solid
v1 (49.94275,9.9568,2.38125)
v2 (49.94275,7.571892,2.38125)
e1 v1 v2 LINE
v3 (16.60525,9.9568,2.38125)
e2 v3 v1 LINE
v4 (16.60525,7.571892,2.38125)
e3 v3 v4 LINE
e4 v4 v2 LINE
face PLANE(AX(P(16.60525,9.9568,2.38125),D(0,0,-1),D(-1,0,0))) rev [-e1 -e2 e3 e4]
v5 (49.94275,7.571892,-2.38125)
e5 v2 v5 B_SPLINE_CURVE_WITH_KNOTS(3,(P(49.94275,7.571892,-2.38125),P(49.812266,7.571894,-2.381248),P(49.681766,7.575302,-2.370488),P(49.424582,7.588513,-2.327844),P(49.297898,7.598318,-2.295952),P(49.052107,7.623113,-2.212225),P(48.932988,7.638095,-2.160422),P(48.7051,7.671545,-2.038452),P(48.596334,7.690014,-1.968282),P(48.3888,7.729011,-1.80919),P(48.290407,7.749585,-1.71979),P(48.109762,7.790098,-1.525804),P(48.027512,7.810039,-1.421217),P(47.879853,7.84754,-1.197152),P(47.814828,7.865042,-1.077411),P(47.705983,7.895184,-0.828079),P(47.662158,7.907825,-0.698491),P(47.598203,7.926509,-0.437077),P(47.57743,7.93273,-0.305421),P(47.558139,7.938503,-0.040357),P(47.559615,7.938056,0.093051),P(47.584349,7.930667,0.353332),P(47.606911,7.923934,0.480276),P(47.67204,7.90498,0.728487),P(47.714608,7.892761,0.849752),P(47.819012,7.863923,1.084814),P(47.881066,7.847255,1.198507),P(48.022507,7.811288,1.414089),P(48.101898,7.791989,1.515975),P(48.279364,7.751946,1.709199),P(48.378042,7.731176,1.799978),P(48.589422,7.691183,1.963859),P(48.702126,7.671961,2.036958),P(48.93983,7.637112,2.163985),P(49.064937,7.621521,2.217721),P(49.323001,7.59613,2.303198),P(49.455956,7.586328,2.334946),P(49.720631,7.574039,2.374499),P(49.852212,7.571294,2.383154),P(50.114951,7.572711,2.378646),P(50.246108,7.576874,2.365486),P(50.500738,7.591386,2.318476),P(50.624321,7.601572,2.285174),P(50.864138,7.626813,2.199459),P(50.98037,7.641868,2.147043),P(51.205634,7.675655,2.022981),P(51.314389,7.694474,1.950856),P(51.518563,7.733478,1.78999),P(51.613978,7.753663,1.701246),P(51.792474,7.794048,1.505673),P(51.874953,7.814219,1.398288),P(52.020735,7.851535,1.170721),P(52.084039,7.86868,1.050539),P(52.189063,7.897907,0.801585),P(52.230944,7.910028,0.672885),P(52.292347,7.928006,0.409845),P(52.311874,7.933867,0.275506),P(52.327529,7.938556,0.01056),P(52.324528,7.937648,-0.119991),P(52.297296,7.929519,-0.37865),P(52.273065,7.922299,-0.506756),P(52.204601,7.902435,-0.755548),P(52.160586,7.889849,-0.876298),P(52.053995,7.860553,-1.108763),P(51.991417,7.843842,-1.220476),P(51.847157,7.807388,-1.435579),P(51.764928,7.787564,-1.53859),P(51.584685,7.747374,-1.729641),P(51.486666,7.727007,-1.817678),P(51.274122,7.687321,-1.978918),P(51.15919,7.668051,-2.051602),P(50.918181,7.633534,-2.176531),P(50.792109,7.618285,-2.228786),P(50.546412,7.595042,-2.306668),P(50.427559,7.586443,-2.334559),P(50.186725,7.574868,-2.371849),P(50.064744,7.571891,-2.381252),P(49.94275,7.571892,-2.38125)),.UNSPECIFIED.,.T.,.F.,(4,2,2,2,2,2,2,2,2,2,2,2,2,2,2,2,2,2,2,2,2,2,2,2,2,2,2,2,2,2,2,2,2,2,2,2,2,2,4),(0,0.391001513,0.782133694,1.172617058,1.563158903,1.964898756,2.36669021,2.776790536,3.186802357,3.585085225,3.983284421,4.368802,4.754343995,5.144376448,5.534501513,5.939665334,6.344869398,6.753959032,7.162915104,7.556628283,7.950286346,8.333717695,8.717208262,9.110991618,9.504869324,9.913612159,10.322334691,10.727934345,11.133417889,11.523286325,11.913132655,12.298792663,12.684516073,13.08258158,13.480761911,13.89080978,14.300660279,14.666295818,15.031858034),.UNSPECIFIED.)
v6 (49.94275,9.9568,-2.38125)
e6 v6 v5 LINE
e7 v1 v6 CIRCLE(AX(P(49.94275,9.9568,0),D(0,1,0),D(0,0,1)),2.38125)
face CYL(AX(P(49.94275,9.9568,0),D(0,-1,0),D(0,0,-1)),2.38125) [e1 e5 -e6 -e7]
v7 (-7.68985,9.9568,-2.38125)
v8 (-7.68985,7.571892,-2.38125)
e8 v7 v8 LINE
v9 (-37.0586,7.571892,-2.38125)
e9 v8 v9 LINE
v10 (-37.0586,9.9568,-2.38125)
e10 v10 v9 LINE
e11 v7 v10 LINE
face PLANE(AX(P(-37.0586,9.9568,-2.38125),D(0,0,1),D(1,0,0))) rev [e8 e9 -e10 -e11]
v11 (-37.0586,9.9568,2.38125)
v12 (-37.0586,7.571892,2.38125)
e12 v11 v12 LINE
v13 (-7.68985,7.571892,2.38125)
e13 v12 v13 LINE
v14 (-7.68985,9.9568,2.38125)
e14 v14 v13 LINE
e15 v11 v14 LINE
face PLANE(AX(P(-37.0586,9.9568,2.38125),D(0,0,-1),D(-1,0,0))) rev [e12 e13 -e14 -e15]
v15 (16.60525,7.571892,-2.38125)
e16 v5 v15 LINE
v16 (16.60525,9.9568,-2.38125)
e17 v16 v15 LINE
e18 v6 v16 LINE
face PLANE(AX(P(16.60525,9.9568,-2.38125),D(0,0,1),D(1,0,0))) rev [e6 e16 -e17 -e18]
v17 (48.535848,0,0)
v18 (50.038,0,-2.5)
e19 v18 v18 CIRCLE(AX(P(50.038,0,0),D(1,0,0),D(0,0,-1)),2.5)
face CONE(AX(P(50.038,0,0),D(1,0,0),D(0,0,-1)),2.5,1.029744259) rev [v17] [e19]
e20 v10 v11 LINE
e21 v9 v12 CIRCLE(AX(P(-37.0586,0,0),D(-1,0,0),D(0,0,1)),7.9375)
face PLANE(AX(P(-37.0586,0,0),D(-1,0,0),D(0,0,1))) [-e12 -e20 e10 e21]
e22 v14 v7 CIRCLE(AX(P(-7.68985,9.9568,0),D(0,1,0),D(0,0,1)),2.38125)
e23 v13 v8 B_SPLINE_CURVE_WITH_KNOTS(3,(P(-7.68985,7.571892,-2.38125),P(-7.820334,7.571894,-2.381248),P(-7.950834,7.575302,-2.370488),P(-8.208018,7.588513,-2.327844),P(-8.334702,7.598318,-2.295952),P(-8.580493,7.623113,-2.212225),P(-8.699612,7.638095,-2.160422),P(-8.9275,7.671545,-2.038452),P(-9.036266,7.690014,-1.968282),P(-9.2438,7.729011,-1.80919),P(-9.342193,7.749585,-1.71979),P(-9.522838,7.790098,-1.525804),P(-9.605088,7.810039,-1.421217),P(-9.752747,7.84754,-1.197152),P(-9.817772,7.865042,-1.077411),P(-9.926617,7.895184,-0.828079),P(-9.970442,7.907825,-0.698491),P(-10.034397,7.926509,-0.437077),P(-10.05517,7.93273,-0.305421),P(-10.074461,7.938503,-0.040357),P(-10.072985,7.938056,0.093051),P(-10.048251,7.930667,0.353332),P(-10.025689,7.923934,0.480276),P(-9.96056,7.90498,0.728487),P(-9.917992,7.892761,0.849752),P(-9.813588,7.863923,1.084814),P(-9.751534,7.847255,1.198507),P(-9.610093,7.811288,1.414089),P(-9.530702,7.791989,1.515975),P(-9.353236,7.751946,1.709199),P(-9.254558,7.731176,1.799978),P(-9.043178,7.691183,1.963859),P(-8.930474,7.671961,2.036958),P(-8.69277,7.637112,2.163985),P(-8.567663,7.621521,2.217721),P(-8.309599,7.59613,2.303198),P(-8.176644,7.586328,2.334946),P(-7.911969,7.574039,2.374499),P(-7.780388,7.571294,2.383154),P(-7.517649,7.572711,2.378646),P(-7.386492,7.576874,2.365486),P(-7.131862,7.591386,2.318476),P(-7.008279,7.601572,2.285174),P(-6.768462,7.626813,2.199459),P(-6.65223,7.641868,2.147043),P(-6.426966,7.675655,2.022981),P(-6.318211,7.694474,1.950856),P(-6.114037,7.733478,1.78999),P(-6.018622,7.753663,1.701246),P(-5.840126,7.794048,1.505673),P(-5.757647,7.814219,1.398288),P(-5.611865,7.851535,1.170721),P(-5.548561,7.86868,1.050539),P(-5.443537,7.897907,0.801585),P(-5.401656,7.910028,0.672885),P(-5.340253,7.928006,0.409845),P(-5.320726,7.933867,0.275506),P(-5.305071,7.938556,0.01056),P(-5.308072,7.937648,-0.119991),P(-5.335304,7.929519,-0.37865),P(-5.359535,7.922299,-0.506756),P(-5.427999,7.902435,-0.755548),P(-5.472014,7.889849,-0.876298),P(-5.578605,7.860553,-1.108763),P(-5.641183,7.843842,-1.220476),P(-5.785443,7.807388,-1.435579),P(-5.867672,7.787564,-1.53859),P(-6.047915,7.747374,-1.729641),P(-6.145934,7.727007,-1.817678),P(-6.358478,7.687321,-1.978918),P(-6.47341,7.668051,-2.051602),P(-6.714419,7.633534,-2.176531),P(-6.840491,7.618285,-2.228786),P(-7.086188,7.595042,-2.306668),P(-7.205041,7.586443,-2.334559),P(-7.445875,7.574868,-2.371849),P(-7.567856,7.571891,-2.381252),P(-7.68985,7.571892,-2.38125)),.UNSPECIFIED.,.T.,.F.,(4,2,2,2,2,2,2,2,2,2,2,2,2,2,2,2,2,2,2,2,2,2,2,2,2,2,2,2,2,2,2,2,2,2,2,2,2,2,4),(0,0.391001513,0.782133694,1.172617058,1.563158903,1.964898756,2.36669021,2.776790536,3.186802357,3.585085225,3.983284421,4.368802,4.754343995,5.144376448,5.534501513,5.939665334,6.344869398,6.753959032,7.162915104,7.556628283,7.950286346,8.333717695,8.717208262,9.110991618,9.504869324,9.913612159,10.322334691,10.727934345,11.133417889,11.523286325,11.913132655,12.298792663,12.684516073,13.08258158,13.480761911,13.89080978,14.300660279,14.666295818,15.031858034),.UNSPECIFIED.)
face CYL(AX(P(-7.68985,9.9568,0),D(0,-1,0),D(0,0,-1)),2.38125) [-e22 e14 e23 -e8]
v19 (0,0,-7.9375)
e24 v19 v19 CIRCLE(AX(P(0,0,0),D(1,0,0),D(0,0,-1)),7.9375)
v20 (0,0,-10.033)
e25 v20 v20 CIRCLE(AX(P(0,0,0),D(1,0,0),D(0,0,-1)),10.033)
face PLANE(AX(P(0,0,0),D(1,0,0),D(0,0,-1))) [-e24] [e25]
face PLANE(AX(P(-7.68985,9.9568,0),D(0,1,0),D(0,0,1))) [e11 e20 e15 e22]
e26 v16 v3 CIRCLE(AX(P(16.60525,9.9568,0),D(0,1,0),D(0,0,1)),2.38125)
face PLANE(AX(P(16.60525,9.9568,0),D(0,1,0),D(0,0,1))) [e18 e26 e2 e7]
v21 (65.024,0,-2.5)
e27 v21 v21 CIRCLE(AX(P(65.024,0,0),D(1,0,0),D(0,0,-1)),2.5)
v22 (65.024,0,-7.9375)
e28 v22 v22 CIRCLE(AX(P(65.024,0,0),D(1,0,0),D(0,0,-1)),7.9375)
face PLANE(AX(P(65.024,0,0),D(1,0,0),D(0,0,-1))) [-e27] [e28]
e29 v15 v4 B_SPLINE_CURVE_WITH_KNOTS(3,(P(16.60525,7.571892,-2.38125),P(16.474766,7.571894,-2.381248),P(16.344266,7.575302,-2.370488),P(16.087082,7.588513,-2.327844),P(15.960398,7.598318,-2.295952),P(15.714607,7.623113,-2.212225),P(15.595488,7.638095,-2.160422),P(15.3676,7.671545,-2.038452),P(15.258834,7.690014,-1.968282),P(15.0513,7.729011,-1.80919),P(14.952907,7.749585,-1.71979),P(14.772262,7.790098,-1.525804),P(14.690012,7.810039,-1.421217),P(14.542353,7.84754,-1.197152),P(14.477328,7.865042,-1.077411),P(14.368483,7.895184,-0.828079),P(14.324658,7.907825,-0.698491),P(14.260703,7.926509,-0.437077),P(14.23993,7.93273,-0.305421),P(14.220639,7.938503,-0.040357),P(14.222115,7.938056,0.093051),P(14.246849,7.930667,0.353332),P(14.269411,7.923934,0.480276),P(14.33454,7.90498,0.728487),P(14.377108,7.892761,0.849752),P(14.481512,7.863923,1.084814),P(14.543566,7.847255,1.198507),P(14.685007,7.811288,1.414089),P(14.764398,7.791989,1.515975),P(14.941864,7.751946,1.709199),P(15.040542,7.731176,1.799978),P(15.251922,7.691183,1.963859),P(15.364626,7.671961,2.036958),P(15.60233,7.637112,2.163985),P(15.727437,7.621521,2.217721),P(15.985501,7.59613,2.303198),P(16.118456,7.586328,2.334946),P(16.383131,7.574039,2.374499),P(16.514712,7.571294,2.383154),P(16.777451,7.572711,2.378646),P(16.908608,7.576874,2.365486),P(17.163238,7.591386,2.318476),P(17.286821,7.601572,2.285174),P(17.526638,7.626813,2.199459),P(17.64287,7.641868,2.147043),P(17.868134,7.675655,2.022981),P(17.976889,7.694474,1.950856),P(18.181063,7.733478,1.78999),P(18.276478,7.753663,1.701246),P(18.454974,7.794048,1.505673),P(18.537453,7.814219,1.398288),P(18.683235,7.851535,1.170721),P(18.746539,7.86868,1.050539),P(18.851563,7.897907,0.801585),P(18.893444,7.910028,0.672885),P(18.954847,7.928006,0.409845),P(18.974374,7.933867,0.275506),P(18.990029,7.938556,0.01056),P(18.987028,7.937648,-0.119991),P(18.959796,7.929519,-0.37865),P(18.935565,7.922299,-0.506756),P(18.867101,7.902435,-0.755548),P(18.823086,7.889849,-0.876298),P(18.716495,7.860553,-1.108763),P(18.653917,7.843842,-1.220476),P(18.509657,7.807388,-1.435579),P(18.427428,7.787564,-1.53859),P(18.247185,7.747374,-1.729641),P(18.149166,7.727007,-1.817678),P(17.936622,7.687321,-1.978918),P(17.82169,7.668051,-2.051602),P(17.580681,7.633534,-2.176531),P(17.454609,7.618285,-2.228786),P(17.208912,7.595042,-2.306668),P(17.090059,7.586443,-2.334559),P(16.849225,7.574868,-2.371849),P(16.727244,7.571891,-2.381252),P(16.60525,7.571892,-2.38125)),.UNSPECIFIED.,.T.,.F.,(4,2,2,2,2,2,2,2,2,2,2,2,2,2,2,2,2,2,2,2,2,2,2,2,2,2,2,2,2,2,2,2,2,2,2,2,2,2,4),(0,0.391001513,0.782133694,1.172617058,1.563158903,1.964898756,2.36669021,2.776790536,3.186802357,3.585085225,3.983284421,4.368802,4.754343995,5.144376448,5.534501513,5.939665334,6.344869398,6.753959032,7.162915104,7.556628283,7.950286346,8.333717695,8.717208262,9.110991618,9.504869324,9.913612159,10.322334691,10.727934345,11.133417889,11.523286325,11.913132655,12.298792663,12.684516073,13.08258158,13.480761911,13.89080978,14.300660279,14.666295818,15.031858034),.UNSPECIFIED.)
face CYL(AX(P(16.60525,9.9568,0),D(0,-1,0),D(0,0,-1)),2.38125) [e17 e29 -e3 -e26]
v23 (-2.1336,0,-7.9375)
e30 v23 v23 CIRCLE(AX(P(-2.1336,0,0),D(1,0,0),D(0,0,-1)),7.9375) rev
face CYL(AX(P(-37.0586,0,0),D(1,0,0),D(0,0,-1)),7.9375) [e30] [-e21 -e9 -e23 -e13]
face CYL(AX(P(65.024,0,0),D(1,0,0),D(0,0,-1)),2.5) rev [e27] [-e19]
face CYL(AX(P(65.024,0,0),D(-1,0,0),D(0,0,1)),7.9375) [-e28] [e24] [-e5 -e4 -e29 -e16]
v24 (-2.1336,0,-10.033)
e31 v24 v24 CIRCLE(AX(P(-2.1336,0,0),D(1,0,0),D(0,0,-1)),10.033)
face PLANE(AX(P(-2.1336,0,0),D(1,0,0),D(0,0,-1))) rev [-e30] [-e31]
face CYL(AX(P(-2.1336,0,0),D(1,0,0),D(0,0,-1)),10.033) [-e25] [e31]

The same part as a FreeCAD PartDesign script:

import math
import FreeCAD as App
import Part
import Sketcher

V = App.Vector
Q = App.Units.Quantity

doc = App.newDocument("Part")
body = doc.addObject("PartDesign::Body", "Body")

# Sketch on YZ plane
sketch1 = body.newObject("Sketcher::SketchObject", "Sketch")
sketch1.AttachmentSupport = (doc.getObject("YZ_Plane"), [""])
sketch1.MapMode = "FlatFace"
sketch1.addGeometry(Part.Circle(V(0, 0, 0), V(0, 0, 1), 10), False)
sketch1.addConstraint([
    Sketcher.Constraint("Coincident", 0, 3, -1, 1),
    Sketcher.Constraint("Diameter", 0, Q("0.79 in")),
])
pad1 = body.newObject("PartDesign::Pad", "Pad")
pad1.Profile = sketch1
pad1.Length = Q("0.084 in")
pad1.Reversed = True

# Sketch on YZ plane
sketch2 = body.newObject("Sketcher::SketchObject", "Sketch001")
sketch2.AttachmentSupport = (doc.getObject("YZ_Plane"), [""])
sketch2.MapMode = "FlatFace"
sketch2.addGeometry(Part.Circle(V(0, 0, 0), V(0, 0, 1), 8), False)
sketch2.addConstraint([
    Sketcher.Constraint("Coincident", 0, 3, -1, 1),
    Sketcher.Constraint("Diameter", 0, Q("0.625 in")),
])
pad2 = body.newObject("PartDesign::Pad", "Pad001")
pad2.Profile = sketch2
pad2.Length = Q("2.56 in")

# Sketch on YZ plane
sketch3 = body.newObject("Sketcher::SketchObject", "Sketch002")
sketch3.AttachmentSupport = (doc.getObject("YZ_Plane"), [""])
sketch3.MapMode = "FlatFace"
sketch3.AttachmentOffset = App.Placement(V(0, 0, 2.56 * 25.4), App.Rotation())
sketch3.addGeometry(Part.Circle(V(0, 0, 0), V(0, 0, 1), 2.5), False)
sketch3.addConstraint([
    Sketcher.Constraint("Coincident", 0, 3, -1, 1),
    Sketcher.Constraint("Diameter", 0, Q("5 mm")),
])
doc.recompute()
hole = body.newObject("PartDesign::Hole", "Hole")
hole.Profile = sketch3
hole.ThreadType = "None"
hole.Diameter = 5
hole.DepthType = "Dimension"
hole.Depth = Q("0.59 in")
hole.DrillPoint = "Angled"
hole.DrillPointAngle = 118

# Sketch on YZ plane
sketch4 = body.newObject("Sketcher::SketchObject", "Sketch003")
sketch4.AttachmentSupport = (doc.getObject("YZ_Plane"), [""])
sketch4.MapMode = "FlatFace"
sketch4.AttachmentOffset = App.Placement(V(0, 0, -1.459 * 25.4), App.Rotation())
sketch4.addGeometry(Part.Circle(V(0, 0, 0), V(0, 0, 1), 8), False)
sketch4.addConstraint([
    Sketcher.Constraint("Coincident", 0, 3, -1, 1),
    Sketcher.Constraint("Diameter", 0, Q("0.625 in")),
])
pad3 = body.newObject("PartDesign::Pad", "Pad002")
pad3.Profile = sketch4
pad3.Length = Q("1.375 in")

# Sketch on XZ plane
sketch5 = body.newObject("Sketcher::SketchObject", "Sketch004")
sketch5.AttachmentSupport = (doc.getObject("XZ_Plane"), [""])
sketch5.MapMode = "FlatFace"
sketch5.AttachmentOffset = App.Placement(V(0, 0, -0.2045 * 25.4), App.Rotation())
sketch5.addGeometry([
    Part.LineSegment(V(49.9, -2.4, 0), V(16.6, -2.4, 0)),  # 0
    Part.ArcOfCircle(Part.Circle(V(16.6, 0, 0), V(0, 0, 1), 2.4), math.radians(90), math.radians(270)),  # 1
    Part.LineSegment(V(16.6, 2.4, 0), V(49.9, 2.4, 0)),  # 2
    Part.ArcOfCircle(Part.Circle(V(49.9, 0, 0), V(0, 0, 1), 2.4), math.radians(-90), math.radians(90)),  # 3
    Part.LineSegment(V(-7.7, -2.4, 0), V(-37.1, -2.4, 0)),  # 4
    Part.LineSegment(V(-37.1, -2.4, 0), V(-37.1, 2.4, 0)),  # 5
    Part.LineSegment(V(-37.1, 2.4, 0), V(-7.7, 2.4, 0)),  # 6
    Part.ArcOfCircle(Part.Circle(V(-7.7, 0, 0), V(0, 0, 1), 2.4), math.radians(-90), math.radians(90)),  # 7
], False)
sketch5.addConstraint([
    Sketcher.Constraint("Tangent", 0, 2, 1, 2),
    Sketcher.Constraint("Tangent", 1, 1, 2, 1),
    Sketcher.Constraint("Tangent", 2, 2, 3, 2),
    Sketcher.Constraint("Tangent", 3, 1, 0, 1),
    Sketcher.Constraint("Coincident", 4, 2, 5, 1),
    Sketcher.Constraint("Coincident", 5, 2, 6, 1),
    Sketcher.Constraint("Tangent", 6, 2, 7, 2),
    Sketcher.Constraint("Tangent", 7, 1, 4, 1),
    Sketcher.Constraint("Horizontal", 0),
    Sketcher.Constraint("Horizontal", 2),
    Sketcher.Constraint("Horizontal", 4),
    Sketcher.Constraint("Vertical", 5),
    Sketcher.Constraint("Horizontal", 6),
    Sketcher.Constraint("Equal", 3, 7),
    Sketcher.Constraint("PointOnObject", 1, 3, -1),
    Sketcher.Constraint("PointOnObject", 7, 3, -1),
    Sketcher.Constraint("Radius", 1, Q("0.09375 in")),
    Sketcher.Constraint("DistanceX", 0, 2, 0, 1, Q("1.3125 in")),
    Sketcher.Constraint("DistanceX", 4, 2, 4, 1, Q("1.15625 in")),
    Sketcher.Constraint("DistanceX", 4, 2, -1, 1, Q("1.459 in")),
    Sketcher.Constraint("DistanceX", 7, 3, 3, 3, Q("2.269 in")),
])
pad4 = body.newObject("PartDesign::Pad", "Pad003")
pad4.Profile = sketch5
pad4.Length = Q("0.1875 in")
pad4.Reversed = True

doc.recompute()
